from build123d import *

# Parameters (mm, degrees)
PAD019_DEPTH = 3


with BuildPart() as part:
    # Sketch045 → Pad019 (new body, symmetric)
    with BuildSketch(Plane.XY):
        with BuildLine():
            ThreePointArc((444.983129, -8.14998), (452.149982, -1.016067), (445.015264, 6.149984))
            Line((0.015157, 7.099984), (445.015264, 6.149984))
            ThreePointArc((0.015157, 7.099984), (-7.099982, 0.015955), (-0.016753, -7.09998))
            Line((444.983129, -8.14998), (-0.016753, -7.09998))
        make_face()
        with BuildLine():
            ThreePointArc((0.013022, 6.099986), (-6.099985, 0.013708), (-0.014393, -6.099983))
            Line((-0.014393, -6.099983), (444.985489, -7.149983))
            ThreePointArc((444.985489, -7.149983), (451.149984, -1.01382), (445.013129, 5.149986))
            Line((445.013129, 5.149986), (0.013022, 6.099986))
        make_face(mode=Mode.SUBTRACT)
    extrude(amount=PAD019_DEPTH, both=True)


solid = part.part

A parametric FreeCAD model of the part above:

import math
import FreeCAD as App
import Part
import Sketcher
from FreeCAD import Vector

doc = App.newDocument("Part")
body = doc.addObject("PartDesign::Body", "Body")

sketch1 = body.newObject("Sketcher::SketchObject", "Sketch")
sketch1.AttachmentSupport = (doc.getObject("XY_Plane"), [""])
sketch1.MapMode = "FlatFace"
sketch1.addGeometry(Part.ArcOfCircle(Part.Circle(Vector(445, -1, 0), Vector(0, 0, 1), 7), math.radians(-90), math.radians(90)), False)
sketch1.addGeometry(Part.LineSegment(Vector(445, 6, 0), Vector(0, 7, 0)), False)
sketch1.addGeometry(Part.ArcOfCircle(Part.Circle(Vector(0, 0, 0), Vector(0, 0, 1), 7), math.radians(90), math.radians(270)), False)
sketch1.addGeometry(Part.LineSegment(Vector(0, -7, 0), Vector(445, -8, 0)), False)
sketch1.addGeometry(Part.ArcOfCircle(Part.Circle(Vector(0, 0, 0), Vector(0, 0, 1), 6), math.radians(90), math.radians(270)), False)
sketch1.addGeometry(Part.LineSegment(Vector(0, 6, 0), Vector(445, 5, 0)), False)
sketch1.addGeometry(Part.ArcOfCircle(Part.Circle(Vector(445, -1, 0), Vector(0, 0, 1), 6), math.radians(-90), math.radians(90)), False)
sketch1.addGeometry(Part.LineSegment(Vector(445, -7, 0), Vector(0, -6, 0)), False)
sketch1.addConstraint(Sketcher.Constraint("Tangent", 0, 2, 1, 1))
sketch1.addConstraint(Sketcher.Constraint("Tangent", 1, 2, 2, 1))
sketch1.addConstraint(Sketcher.Constraint("Tangent", 2, 2, 3, 1))
sketch1.addConstraint(Sketcher.Constraint("Tangent", 3, 2, 0, 1))
sketch1.addConstraint(Sketcher.Constraint("Tangent", 4, 1, 5, 1))
sketch1.addConstraint(Sketcher.Constraint("Tangent", 5, 2, 6, 2))
sketch1.addConstraint(Sketcher.Constraint("Tangent", 6, 1, 7, 1))
sketch1.addConstraint(Sketcher.Constraint("Tangent", 7, 2, 4, 2))
sketch1.addConstraint(Sketcher.Constraint("Coincident", 2, 3, -1, 1))
sketch1.addConstraint(Sketcher.Constraint("Coincident", 4, 3, -1, 1))
sketch1.addConstraint(Sketcher.Constraint("Coincident", 6, 3, 0, 3))
sketch1.addConstraint(Sketcher.Constraint("Parallel", 1, 5))
sketch1.addConstraint(Sketcher.Constraint("Radius", 2, 7.1))
sketch1.addConstraint(Sketcher.Constraint("Radius", 4, 6.1))
sketch1.addConstraint(Sketcher.Constraint("Radius", 0, 7.15))
sketch1.addConstraint(Sketcher.Constraint("DistanceX", -1, 1, 0, 3, 445.0))
sketch1.addConstraint(Sketcher.Constraint("DistanceY", 0, 3, -1, 1, 1.0))
pad1 = body.newObject("PartDesign::Pad", "Pad")
pad1.Profile = sketch1
pad1.Length = 6
pad1.Midplane = True

doc.recompute()
